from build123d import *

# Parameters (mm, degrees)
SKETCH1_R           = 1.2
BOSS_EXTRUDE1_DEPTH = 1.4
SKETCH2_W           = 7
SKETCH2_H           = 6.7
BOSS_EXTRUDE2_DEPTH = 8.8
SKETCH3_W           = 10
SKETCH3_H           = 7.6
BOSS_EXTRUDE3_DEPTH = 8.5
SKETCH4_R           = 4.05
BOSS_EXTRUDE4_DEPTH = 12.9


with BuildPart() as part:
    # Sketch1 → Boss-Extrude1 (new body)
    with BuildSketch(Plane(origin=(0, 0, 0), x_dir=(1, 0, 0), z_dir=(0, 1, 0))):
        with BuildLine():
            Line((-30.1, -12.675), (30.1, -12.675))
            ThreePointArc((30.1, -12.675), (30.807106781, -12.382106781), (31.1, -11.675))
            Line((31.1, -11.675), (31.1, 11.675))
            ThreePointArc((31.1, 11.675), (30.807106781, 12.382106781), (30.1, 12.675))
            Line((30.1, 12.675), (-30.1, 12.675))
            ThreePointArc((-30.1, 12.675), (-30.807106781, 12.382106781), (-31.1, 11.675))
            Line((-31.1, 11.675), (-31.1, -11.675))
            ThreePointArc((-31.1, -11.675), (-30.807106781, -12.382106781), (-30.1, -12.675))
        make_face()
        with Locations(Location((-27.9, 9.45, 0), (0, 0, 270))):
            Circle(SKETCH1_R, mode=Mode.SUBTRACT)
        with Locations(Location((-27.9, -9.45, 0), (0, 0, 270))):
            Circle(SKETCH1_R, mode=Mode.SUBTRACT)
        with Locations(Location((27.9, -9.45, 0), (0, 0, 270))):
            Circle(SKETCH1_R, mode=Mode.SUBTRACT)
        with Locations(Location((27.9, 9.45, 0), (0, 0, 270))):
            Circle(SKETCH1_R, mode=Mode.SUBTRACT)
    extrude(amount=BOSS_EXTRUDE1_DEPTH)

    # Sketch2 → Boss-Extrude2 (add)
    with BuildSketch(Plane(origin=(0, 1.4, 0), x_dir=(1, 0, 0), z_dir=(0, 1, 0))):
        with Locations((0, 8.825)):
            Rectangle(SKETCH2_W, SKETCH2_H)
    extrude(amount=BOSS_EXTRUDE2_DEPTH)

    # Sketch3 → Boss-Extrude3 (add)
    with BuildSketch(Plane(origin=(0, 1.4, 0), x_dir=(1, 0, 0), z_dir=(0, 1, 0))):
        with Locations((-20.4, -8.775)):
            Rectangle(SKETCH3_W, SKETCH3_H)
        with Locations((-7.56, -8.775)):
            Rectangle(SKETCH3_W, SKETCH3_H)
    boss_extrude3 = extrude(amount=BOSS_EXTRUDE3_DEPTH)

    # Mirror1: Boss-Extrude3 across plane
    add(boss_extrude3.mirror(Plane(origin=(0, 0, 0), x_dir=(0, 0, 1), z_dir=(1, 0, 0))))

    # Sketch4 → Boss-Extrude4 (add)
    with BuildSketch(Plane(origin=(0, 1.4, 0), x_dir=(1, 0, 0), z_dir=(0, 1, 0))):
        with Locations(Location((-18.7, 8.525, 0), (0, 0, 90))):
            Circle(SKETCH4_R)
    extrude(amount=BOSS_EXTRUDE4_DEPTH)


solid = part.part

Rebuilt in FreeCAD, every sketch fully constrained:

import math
import FreeCAD as App
import Part
import Sketcher

V = App.Vector
Q = App.Units.Quantity

doc = App.newDocument("Part")
params = doc.addObject("Spreadsheet::Sheet", "Params")
for row, (alias, value) in enumerate([
    ("sketch1_radius", "1 mm"),
    ("sketch1_diameter", "2.4 mm"),
    ("sketch1_width", "60.2 mm"),
    ("sketch1_height", "23.35 mm"),
    ("pad1_length", "1.4 mm"),
    ("sketch2_width", "7 mm"),
    ("sketch2_height", "6.7 mm"),
    ("pad2_length", "8.8 mm"),
    ("sketch3_width", "10 mm"),
    ("sketch3_height", "7.6 mm"),
    ("pad3_length", "8.5 mm"),
    ("sketch4_diameter", "8.1 mm"),
    ("pad4_length", "12.9 mm"),
], start=1):
    params.set(f"A{row}", alias)
    params.set(f"B{row}", "=" + value)
    params.setAlias(f"B{row}", alias)

body = doc.addObject("PartDesign::Body", "Body")

# Sketch on XZ plane
sketch1 = body.newObject("Sketcher::SketchObject", "Sketch")
sketch1.AttachmentSupport = (doc.getObject("XZ_Plane"), [""])
sketch1.MapMode = "FlatFace"
sketch1.addGeometry([
    Part.LineSegment(V(-30.1, 12.7, 0), V(30.1, 12.7, 0)),  # 0
    Part.ArcOfCircle(Part.Circle(V(30.1, 11.7, 0), V(0, 0, 1), 1), math.radians(0), math.radians(90)),  # 1
    Part.LineSegment(V(31.1, 11.7, 0), V(31.1, -11.7, 0)),  # 2
    Part.ArcOfCircle(Part.Circle(V(30.1, -11.7, 0), V(0, 0, 1), 1), math.radians(-90), math.radians(0)),  # 3
    Part.LineSegment(V(30.1, -12.7, 0), V(-30.1, -12.7, 0)),  # 4
    Part.ArcOfCircle(Part.Circle(V(-30.1, -11.7, 0), V(0, 0, 1), 1), math.radians(-180), math.radians(-90)),  # 5
    Part.LineSegment(V(-31.1, -11.7, 0), V(-31.1, 11.7, 0)),  # 6
    Part.ArcOfCircle(Part.Circle(V(-30.1, 11.7, 0), V(0, 0, 1), 1), math.radians(90), math.radians(180)),  # 7
    Part.Circle(V(-27.9, 9.4, 0), V(0, 0, 1), 1.2),  # 8
    Part.Circle(V(27.9, 9.4, 0), V(0, 0, 1), 1.2),  # 9
    Part.Circle(V(-27.9, -9.4, 0), V(0, 0, 1), 1.2),  # 10
    Part.Circle(V(27.9, -9.4, 0), V(0, 0, 1), 1.2),  # 11
], False)
sketch1.addConstraint([
    Sketcher.Constraint("Tangent", 0, 2, 1, 2),
    Sketcher.Constraint("Tangent", 1, 1, 2, 1),
    Sketcher.Constraint("Tangent", 2, 2, 3, 2),
    Sketcher.Constraint("Tangent", 3, 1, 4, 1),
    Sketcher.Constraint("Tangent", 4, 2, 5, 2),
    Sketcher.Constraint("Tangent", 5, 1, 6, 1),
    Sketcher.Constraint("Tangent", 6, 2, 7, 2),
    Sketcher.Constraint("Tangent", 7, 1, 0, 1),
    Sketcher.Constraint("Horizontal", 0),
    Sketcher.Constraint("Vertical", 2),
    Sketcher.Constraint("Horizontal", 4),
    Sketcher.Constraint("Vertical", 6),
    Sketcher.Constraint("Equal", 1, 3),
    Sketcher.Constraint("Equal", 3, 5),
    Sketcher.Constraint("Equal", 5, 7),
    Sketcher.Constraint("Equal", 8, 9),
    Sketcher.Constraint("Equal", 9, 10),
    Sketcher.Constraint("Equal", 10, 11),
    Sketcher.Constraint("Symmetric", 1, 3, 5, 3, -1, 1),
    Sketcher.Constraint("Symmetric", 9, 3, 10, 3, -1, 1),
    Sketcher.Constraint("Symmetric", 8, 3, 11, 3, -1, 1),
    Sketcher.Constraint("Symmetric", 8, 3, 9, 3, -2),
    Sketcher.Constraint("Radius", 1, Q("1 mm")),
    Sketcher.Constraint("Diameter", 8, Q("2.4 mm")),
    Sketcher.Constraint("DistanceX", 0, 1, 0, 2, Q("60.2 mm")),
    Sketcher.Constraint("DistanceX", 8, 3, 1, 3, Q("58 mm")),
    Sketcher.Constraint("DistanceY", 2, 2, 2, 1, Q("23.35 mm")),
    Sketcher.Constraint("DistanceY", 10, 3, 8, 3, Q("18.9 mm")),
])
sketch1.setExpression("Constraints[22]", "Params.sketch1_radius")
sketch1.setExpression("Constraints[23]", "Params.sketch1_diameter")
sketch1.setExpression("Constraints[24]", "Params.sketch1_width")
sketch1.setExpression("Constraints[26]", "Params.sketch1_height")
pad1 = body.newObject("PartDesign::Pad", "Pad")
pad1.Profile = sketch1
pad1.setExpression("Length", "Params.pad1_length")
pad1.Reversed = True

# Sketch on XZ plane
sketch2 = body.newObject("Sketcher::SketchObject", "Sketch001")
sketch2.AttachmentSupport = (doc.getObject("XZ_Plane"), [""])
sketch2.MapMode = "FlatFace"
sketch2.AttachmentOffset = App.Placement(V(0, 0, -1.4), App.Rotation())
sketch2.addGeometry([
    Part.LineSegment(V(-4, -12, 0), V(-4, -5, 0)),
    Part.LineSegment(V(-4, -5, 0), V(4, -5, 0)),
    Part.LineSegment(V(4, -5, 0), V(4, -12, 0)),
    Part.LineSegment(V(4, -12, 0), V(-4, -12, 0)),
], False)
sketch2.addConstraint([
    Sketcher.Constraint("Coincident", 0, 2, 1, 1),
    Sketcher.Constraint("Coincident", 1, 2, 2, 1),
    Sketcher.Constraint("Coincident", 2, 2, 3, 1),
    Sketcher.Constraint("Coincident", 3, 2, 0, 1),
    Sketcher.Constraint("Vertical", 0),
    Sketcher.Constraint("Horizontal", 1),
    Sketcher.Constraint("Vertical", 2),
    Sketcher.Constraint("Horizontal", 3),
    Sketcher.Constraint("DistanceX", 1, 1, 1, 2, Q("7 mm")),
    Sketcher.Constraint("DistanceY", 0, 1, 0, 2, Q("6.7 mm")),
    Sketcher.Constraint("DistanceX", 0, 2, -1, 1, Q("3.5 mm")),
    Sketcher.Constraint("DistanceY", 0, 2, -1, 1, Q("5.475 mm")),
])
sketch2.setExpression("Constraints[8]", "Params.sketch2_width")
sketch2.setExpression("Constraints[9]", "Params.sketch2_height")
pad2 = body.newObject("PartDesign::Pad", "Pad001")
pad2.Profile = sketch2
pad2.setExpression("Length", "Params.pad2_length")
pad2.Reversed = True

# Sketch on XZ plane
sketch3 = body.newObject("Sketcher::SketchObject", "Sketch002")
sketch3.AttachmentSupport = (doc.getObject("XZ_Plane"), [""])
sketch3.MapMode = "FlatFace"
sketch3.AttachmentOffset = App.Placement(V(0, 0, -1.4), App.Rotation())
sketch3.addGeometry([
    Part.LineSegment(V(-25, 5, 0), V(-25, 13, 0)),  # 0
    Part.LineSegment(V(-25, 13, 0), V(-15, 13, 0)),  # 1
    Part.LineSegment(V(-15, 13, 0), V(-15, 5, 0)),  # 2
    Part.LineSegment(V(-15, 5, 0), V(-25, 5, 0)),  # 3
    Part.LineSegment(V(-13, 5, 0), V(-13, 13, 0)),  # 4
    Part.LineSegment(V(-13, 13, 0), V(-3, 13, 0)),  # 5
    Part.LineSegment(V(-3, 13, 0), V(-3, 5, 0)),  # 6
    Part.LineSegment(V(-3, 5, 0), V(-13, 5, 0)),  # 7
], False)
sketch3.addConstraint([
    Sketcher.Constraint("Coincident", 0, 2, 1, 1),
    Sketcher.Constraint("Coincident", 1, 2, 2, 1),
    Sketcher.Constraint("Coincident", 2, 2, 3, 1),
    Sketcher.Constraint("Coincident", 3, 2, 0, 1),
    Sketcher.Constraint("Coincident", 4, 2, 5, 1),
    Sketcher.Constraint("Coincident", 5, 2, 6, 1),
    Sketcher.Constraint("Coincident", 6, 2, 7, 1),
    Sketcher.Constraint("Coincident", 7, 2, 4, 1),
    Sketcher.Constraint("Vertical", 0),
    Sketcher.Constraint("Horizontal", 1),
    Sketcher.Constraint("Vertical", 2),
    Sketcher.Constraint("Horizontal", 3),
    Sketcher.Constraint("Vertical", 4),
    Sketcher.Constraint("Horizontal", 5),
    Sketcher.Constraint("Vertical", 6),
    Sketcher.Constraint("Horizontal", 7),
    Sketcher.Constraint("Horizontal", 1, 2, 4, 2),
    Sketcher.Constraint("Horizontal", 3, 2, 6, 2),
    Sketcher.Constraint("Equal", 3, 5),
    Sketcher.Constraint("DistanceX", 1, 1, 1, 2, Q("10 mm")),
    Sketcher.Constraint("DistanceY", 0, 1, 0, 2, Q("7.6 mm")),
    Sketcher.Constraint("DistanceX", 0, 2, -1, 1, Q("25.4 mm")),
    Sketcher.Constraint("DistanceX", 4, 2, -1, 1, Q("12.56 mm")),
    Sketcher.Constraint("DistanceY", -1, 1, 0, 2, Q("12.575 mm")),
])
sketch3.setExpression("Constraints[19]", "Params.sketch3_width")
sketch3.setExpression("Constraints[20]", "Params.sketch3_height")
pad3 = body.newObject("PartDesign::Pad", "Pad002")
pad3.Profile = sketch3
pad3.setExpression("Length", "Params.pad3_length")
pad3.Reversed = True
doc.recompute()

mirrored = body.newObject("PartDesign::Mirrored", "Mirrored")
mirrored.Originals = [pad3]
mirrored.MirrorPlane = (doc.getObject("YZ_Plane"), [""])
body.Tip = mirrored

# Sketch on XZ plane
sketch4 = body.newObject("Sketcher::SketchObject", "Sketch003")
sketch4.AttachmentSupport = (doc.getObject("XZ_Plane"), [""])
sketch4.MapMode = "FlatFace"
sketch4.AttachmentOffset = App.Placement(V(0, 0, -1.4), App.Rotation())
sketch4.addGeometry(Part.Circle(V(-18.7, -8.5, 0), V(0, 0, 1), 4), False)
sketch4.addConstraint([
    Sketcher.Constraint("Diameter", 0, Q("8.1 mm")),
    Sketcher.Constraint("DistanceX", 0, 3, -1, 1, Q("18.7 mm")),
    Sketcher.Constraint("DistanceY", 0, 3, -1, 1, Q("8.525 mm")),
])
sketch4.setExpression("Constraints[0]", "Params.sketch4_diameter")
pad4 = body.newObject("PartDesign::Pad", "Pad003")
pad4.Profile = sketch4
pad4.setExpression("Length", "Params.pad4_length")
pad4.Reversed = True

doc.recompute()
